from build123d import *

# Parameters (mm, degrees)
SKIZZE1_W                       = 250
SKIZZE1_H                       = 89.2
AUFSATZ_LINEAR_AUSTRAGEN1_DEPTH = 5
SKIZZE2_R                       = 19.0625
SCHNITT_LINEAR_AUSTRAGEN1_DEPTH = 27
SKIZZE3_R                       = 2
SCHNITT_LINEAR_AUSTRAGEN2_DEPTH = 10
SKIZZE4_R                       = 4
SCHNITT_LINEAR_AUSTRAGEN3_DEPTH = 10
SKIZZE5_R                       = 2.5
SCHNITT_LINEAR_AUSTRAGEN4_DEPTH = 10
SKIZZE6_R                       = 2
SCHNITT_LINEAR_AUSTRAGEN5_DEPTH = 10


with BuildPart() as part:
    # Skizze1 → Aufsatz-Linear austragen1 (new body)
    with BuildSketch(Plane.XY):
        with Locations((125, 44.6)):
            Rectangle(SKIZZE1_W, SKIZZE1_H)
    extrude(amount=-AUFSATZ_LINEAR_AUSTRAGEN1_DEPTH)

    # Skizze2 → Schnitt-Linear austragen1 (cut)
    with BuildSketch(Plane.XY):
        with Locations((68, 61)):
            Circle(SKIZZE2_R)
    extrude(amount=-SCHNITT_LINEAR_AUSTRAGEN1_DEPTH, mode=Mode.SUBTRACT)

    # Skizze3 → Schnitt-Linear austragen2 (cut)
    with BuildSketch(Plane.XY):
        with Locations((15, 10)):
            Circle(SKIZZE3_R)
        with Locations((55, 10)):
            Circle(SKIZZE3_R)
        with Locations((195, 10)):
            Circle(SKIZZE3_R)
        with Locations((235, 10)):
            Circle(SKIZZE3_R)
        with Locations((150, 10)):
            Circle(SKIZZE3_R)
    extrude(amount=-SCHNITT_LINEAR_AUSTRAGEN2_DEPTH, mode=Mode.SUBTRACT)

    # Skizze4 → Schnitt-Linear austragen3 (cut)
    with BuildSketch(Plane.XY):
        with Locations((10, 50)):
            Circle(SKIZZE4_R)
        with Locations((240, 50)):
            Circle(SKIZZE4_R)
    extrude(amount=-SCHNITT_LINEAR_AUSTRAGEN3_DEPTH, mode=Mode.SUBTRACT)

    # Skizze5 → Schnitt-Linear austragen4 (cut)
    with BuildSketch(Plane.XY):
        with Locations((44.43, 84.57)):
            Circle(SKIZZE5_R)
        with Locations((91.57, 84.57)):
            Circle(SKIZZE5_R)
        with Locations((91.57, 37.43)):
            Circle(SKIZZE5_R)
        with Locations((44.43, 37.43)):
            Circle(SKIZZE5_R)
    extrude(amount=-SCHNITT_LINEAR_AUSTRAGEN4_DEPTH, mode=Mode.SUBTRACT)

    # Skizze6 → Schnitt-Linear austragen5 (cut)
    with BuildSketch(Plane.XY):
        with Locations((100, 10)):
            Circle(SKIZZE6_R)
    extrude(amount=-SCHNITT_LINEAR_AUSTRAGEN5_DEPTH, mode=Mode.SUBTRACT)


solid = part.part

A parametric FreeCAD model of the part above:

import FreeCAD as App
import Part
import Sketcher

doc = App.newDocument("Part")
params = doc.addObject("Spreadsheet::Sheet", "Params")
for row, (alias, value) in enumerate([
    ("sketch1_width", "250 mm"),
    ("sketch1_height", "89.2 mm"),
    ("pad1_length", "5 mm"),
    ("pocket1_length", "27 mm"),
    ("sketch3_diameter", "4 mm"),
    ("pocket2_length", "10 mm"),
    ("sketch4_diameter", "8 mm"),
    ("pocket3_length", "10 mm"),
    ("sketch5_diameter", "5 mm"),
    ("pocket4_length", "10 mm"),
    ("sketch6_diameter", "4 mm"),
    ("pocket5_length", "10 mm"),
], start=1):
    params.set(f"A{row}", alias)
    params.set(f"B{row}", "=" + value)
    params.setAlias(f"B{row}", alias)

body = doc.addObject("PartDesign::Body", "Body")

# Sketch on XY plane
sketch1 = body.newObject("Sketcher::SketchObject", "Sketch")
sketch1.AttachmentSupport = (doc.getObject("XY_Plane"), [""])
sketch1.MapMode = "FlatFace"
sketch1.addGeometry(Part.LineSegment(App.Vector(0, 89, 0), App.Vector(0, 0, 0)), False)
sketch1.addGeometry(Part.LineSegment(App.Vector(0, 0, 0), App.Vector(250, 0, 0)), False)
sketch1.addGeometry(Part.LineSegment(App.Vector(250, 0, 0), App.Vector(250, 89, 0)), False)
sketch1.addGeometry(Part.LineSegment(App.Vector(250, 89, 0), App.Vector(0, 89, 0)), False)
sketch1.addConstraint(Sketcher.Constraint("Coincident", 0, 2, 1, 1))
sketch1.addConstraint(Sketcher.Constraint("Coincident", 1, 2, 2, 1))
sketch1.addConstraint(Sketcher.Constraint("Coincident", 2, 2, 3, 1))
sketch1.addConstraint(Sketcher.Constraint("Coincident", 3, 2, 0, 1))
sketch1.addConstraint(Sketcher.Constraint("Vertical", 0))
sketch1.addConstraint(Sketcher.Constraint("Horizontal", 1))
sketch1.addConstraint(Sketcher.Constraint("Vertical", 2))
sketch1.addConstraint(Sketcher.Constraint("Horizontal", 3))
sketch1.addConstraint(Sketcher.Constraint("Coincident", 0, 2, -1, 1))
sketch1.addConstraint(Sketcher.Constraint("DistanceX", 1, 1, 1, 2, 250.0))
sketch1.addConstraint(Sketcher.Constraint("DistanceY", 0, 2, 0, 1, 89.2))
sketch1.setExpression("Constraints[9]", "Params.sketch1_width")
sketch1.setExpression("Constraints[10]", "Params.sketch1_height")
pad1 = body.newObject("PartDesign::Pad", "Pad")
pad1.Profile = sketch1
pad1.setExpression("Length", "Params.pad1_length")
pad1.Reversed = True

# Sketch on XY plane
sketch2 = body.newObject("Sketcher::SketchObject", "Sketch001")
sketch2.AttachmentSupport = (doc.getObject("XY_Plane"), [""])
sketch2.MapMode = "FlatFace"
sketch2.addGeometry(Part.Circle(App.Vector(68, 61, 0), App.Vector(0, 0, 1), 19), False)
sketch2.addConstraint(Sketcher.Constraint("Diameter", 0, 38.125))
sketch2.addConstraint(Sketcher.Constraint("DistanceX", -1, 1, 0, 3, 68.0))
sketch2.addConstraint(Sketcher.Constraint("DistanceY", -1, 1, 0, 3, 61.0))
pocket1 = body.newObject("PartDesign::Pocket", "Pocket")
pocket1.Profile = sketch2
pocket1.setExpression("Length", "Params.pocket1_length")

# Sketch on XY plane
sketch3 = body.newObject("Sketcher::SketchObject", "Sketch002")
sketch3.AttachmentSupport = (doc.getObject("XY_Plane"), [""])
sketch3.MapMode = "FlatFace"
sketch3.addGeometry(Part.Circle(App.Vector(15, 10, 0), App.Vector(0, 0, 1), 2), False)
sketch3.addGeometry(Part.Circle(App.Vector(55, 10, 0), App.Vector(0, 0, 1), 2), False)
sketch3.addGeometry(Part.Circle(App.Vector(195, 10, 0), App.Vector(0, 0, 1), 2), False)
sketch3.addGeometry(Part.Circle(App.Vector(235, 10, 0), App.Vector(0, 0, 1), 2), False)
sketch3.addGeometry(Part.Circle(App.Vector(150, 10, 0), App.Vector(0, 0, 1), 2), False)
sketch3.addConstraint(Sketcher.Constraint("Equal", 0, 1))
sketch3.addConstraint(Sketcher.Constraint("Equal", 1, 2))
sketch3.addConstraint(Sketcher.Constraint("Equal", 2, 3))
sketch3.addConstraint(Sketcher.Constraint("Equal", 3, 4))
sketch3.addConstraint(Sketcher.Constraint("Horizontal", 0, 3, 1, 3))
sketch3.addConstraint(Sketcher.Constraint("Horizontal", 1, 3, 2, 3))
sketch3.addConstraint(Sketcher.Constraint("Horizontal", 2, 3, 3, 3))
sketch3.addConstraint(Sketcher.Constraint("Horizontal", 3, 3, 4, 3))
sketch3.addConstraint(Sketcher.Constraint("Diameter", 0, 4.0))
sketch3.addConstraint(Sketcher.Constraint("DistanceX", -1, 1, 0, 3, 15.0))
sketch3.addConstraint(Sketcher.Constraint("DistanceY", -1, 1, 0, 3, 10.0))
sketch3.addConstraint(Sketcher.Constraint("DistanceX", -1, 1, 1, 3, 55.0))
sketch3.addConstraint(Sketcher.Constraint("DistanceX", -1, 1, 2, 3, 195.0))
sketch3.addConstraint(Sketcher.Constraint("DistanceX", -1, 1, 3, 3, 235.0))
sketch3.addConstraint(Sketcher.Constraint("DistanceX", -1, 1, 4, 3, 150.0))
sketch3.setExpression("Constraints[8]", "Params.sketch3_diameter")
pocket2 = body.newObject("PartDesign::Pocket", "Pocket001")
pocket2.Profile = sketch3
pocket2.setExpression("Length", "Params.pocket2_length")

# Sketch on XY plane
sketch4 = body.newObject("Sketcher::SketchObject", "Sketch003")
sketch4.AttachmentSupport = (doc.getObject("XY_Plane"), [""])
sketch4.MapMode = "FlatFace"
sketch4.addGeometry(Part.Circle(App.Vector(10, 50, 0), App.Vector(0, 0, 1), 4), False)
sketch4.addGeometry(Part.Circle(App.Vector(240, 50, 0), App.Vector(0, 0, 1), 4), False)
sketch4.addConstraint(Sketcher.Constraint("Equal", 0, 1))
sketch4.addConstraint(Sketcher.Constraint("Horizontal", 0, 3, 1, 3))
sketch4.addConstraint(Sketcher.Constraint("Diameter", 0, 8.0))
sketch4.addConstraint(Sketcher.Constraint("DistanceX", -1, 1, 0, 3, 10.0))
sketch4.addConstraint(Sketcher.Constraint("DistanceY", -1, 1, 0, 3, 50.0))
sketch4.addConstraint(Sketcher.Constraint("DistanceX", -1, 1, 1, 3, 240.0))
sketch4.setExpression("Constraints[2]", "Params.sketch4_diameter")
pocket3 = body.newObject("PartDesign::Pocket", "Pocket002")
pocket3.Profile = sketch4
pocket3.setExpression("Length", "Params.pocket3_length")

# Sketch on XY plane
sketch5 = body.newObject("Sketcher::SketchObject", "Sketch004")
sketch5.AttachmentSupport = (doc.getObject("XY_Plane"), [""])
sketch5.MapMode = "FlatFace"
sketch5.addGeometry(Part.Circle(App.Vector(44.4, 84.6, 0), App.Vector(0, 0, 1), 2.5), False)
sketch5.addGeometry(Part.Circle(App.Vector(91.6, 84.6, 0), App.Vector(0, 0, 1), 2.5), False)
sketch5.addGeometry(Part.Circle(App.Vector(91.6, 37.4, 0), App.Vector(0, 0, 1), 2.5), False)
sketch5.addGeometry(Part.Circle(App.Vector(44.4, 37.4, 0), App.Vector(0, 0, 1), 2.5), False)
sketch5.addConstraint(Sketcher.Constraint("Equal", 0, 1))
sketch5.addConstraint(Sketcher.Constraint("Equal", 1, 2))
sketch5.addConstraint(Sketcher.Constraint("Equal", 2, 3))
sketch5.addConstraint(Sketcher.Constraint("Horizontal", 0, 3, 1, 3))
sketch5.addConstraint(Sketcher.Constraint("Horizontal", 2, 3, 3, 3))
sketch5.addConstraint(Sketcher.Constraint("Vertical", 1, 3, 2, 3))
sketch5.addConstraint(Sketcher.Constraint("Vertical", 0, 3, 3, 3))
sketch5.addConstraint(Sketcher.Constraint("Diameter", 0, 5.0))
sketch5.addConstraint(Sketcher.Constraint("DistanceX", -1, 1, 0, 3, 44.43))
sketch5.addConstraint(Sketcher.Constraint("DistanceY", -1, 1, 0, 3, 84.57))
sketch5.addConstraint(Sketcher.Constraint("DistanceX", -1, 1, 1, 3, 91.57))
sketch5.addConstraint(Sketcher.Constraint("DistanceY", -1, 1, 2, 3, 37.43))
sketch5.setExpression("Constraints[7]", "Params.sketch5_diameter")
pocket4 = body.newObject("PartDesign::Pocket", "Pocket003")
pocket4.Profile = sketch5
pocket4.setExpression("Length", "Params.pocket4_length")

# Sketch on XY plane
sketch6 = body.newObject("Sketcher::SketchObject", "Sketch005")
sketch6.AttachmentSupport = (doc.getObject("XY_Plane"), [""])
sketch6.MapMode = "FlatFace"
sketch6.addGeometry(Part.Circle(App.Vector(100, 10, 0), App.Vector(0, 0, 1), 2), False)
sketch6.addConstraint(Sketcher.Constraint("Diameter", 0, 4.0))
sketch6.addConstraint(Sketcher.Constraint("DistanceX", -1, 1, 0, 3, 100.0))
sketch6.addConstraint(Sketcher.Constraint("DistanceY", -1, 1, 0, 3, 10.0))
sketch6.setExpression("Constraints[0]", "Params.sketch6_diameter")
pocket5 = body.newObject("PartDesign::Pocket", "Pocket004")
pocket5.Profile = sketch6
pocket5.setExpression("Length", "Params.pocket5_length")

doc.recompute()
